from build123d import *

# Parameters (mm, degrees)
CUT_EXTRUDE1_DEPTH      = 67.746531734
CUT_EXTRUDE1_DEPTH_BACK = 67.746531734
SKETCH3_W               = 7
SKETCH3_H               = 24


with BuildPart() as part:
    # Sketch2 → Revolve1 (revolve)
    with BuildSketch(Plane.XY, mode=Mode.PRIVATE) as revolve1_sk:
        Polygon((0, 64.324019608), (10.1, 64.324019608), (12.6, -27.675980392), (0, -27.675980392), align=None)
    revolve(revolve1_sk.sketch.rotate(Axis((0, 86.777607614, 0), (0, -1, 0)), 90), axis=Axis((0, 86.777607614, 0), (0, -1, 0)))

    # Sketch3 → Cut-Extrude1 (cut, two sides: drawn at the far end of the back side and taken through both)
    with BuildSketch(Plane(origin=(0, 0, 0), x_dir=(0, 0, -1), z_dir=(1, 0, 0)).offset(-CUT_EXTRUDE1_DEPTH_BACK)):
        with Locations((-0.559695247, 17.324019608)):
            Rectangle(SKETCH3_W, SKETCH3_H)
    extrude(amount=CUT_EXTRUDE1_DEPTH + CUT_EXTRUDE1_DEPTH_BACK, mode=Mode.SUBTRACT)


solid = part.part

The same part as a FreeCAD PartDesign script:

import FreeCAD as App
import Part
import Sketcher

V = App.Vector

doc = App.newDocument("Part")
body = doc.addObject("PartDesign::Body", "Body")

# Sketch on XY plane
sketch1 = body.newObject("Sketcher::SketchObject", "Sketch")
sketch1.AttachmentSupport = (doc.getObject("XY_Plane"), [""])
sketch1.MapMode = "FlatFace"
sketch1.addGeometry(Part.LineSegment(V(10.1, 64.32402, 0), V(0, 64.32402, 0)), False)
sketch1.addGeometry(Part.LineSegment(V(0, 64.32402, 0), V(0, -27.67598, 0)), False)
sketch1.addGeometry(Part.LineSegment(V(0, -27.67598, 0), V(12.6, -27.67598, 0)), False)
sketch1.addGeometry(Part.LineSegment(V(12.6, -27.67598, 0), V(10.1, 64.32402, 0)), False)
sketch1.addConstraint(Sketcher.Constraint("Coincident", 0, 2, 1, 1))
sketch1.addConstraint(Sketcher.Constraint("Coincident", 1, 2, 2, 1))
sketch1.addConstraint(Sketcher.Constraint("Coincident", 2, 2, 3, 1))
sketch1.addConstraint(Sketcher.Constraint("Coincident", 3, 2, 0, 1))
sketch1.addConstraint(Sketcher.Constraint("Horizontal", 0))
sketch1.addConstraint(Sketcher.Constraint("Vertical", 1))
sketch1.addConstraint(Sketcher.Constraint("Horizontal", 2))
sketch1.addConstraint(Sketcher.Constraint("PointOnObject", 0, 2, -2))
sketch1.addConstraint(Sketcher.Constraint("DistanceY", 1, 2, 1, 1, 92.0))
sketch1.addConstraint(Sketcher.Constraint("DistanceX", 0, 2, 0, 1, 10.1))
sketch1.addConstraint(Sketcher.Constraint("DistanceX", 2, 1, 2, 2, 12.6))
sketch1.addConstraint(Sketcher.Constraint("DistanceY", -1, 1, 0, 2, 64.32402))
revolution = body.newObject("PartDesign::Revolution", "Revolution")
revolution.Profile = sketch1
revolution.ReferenceAxis = (sketch1, ["V_Axis"])
revolution.Angle = 360

# Sketch on YZ plane
sketch2 = body.newObject("Sketcher::SketchObject", "Sketch001")
sketch2.AttachmentSupport = (doc.getObject("YZ_Plane"), [""])
sketch2.MapMode = "FlatFace"
sketch2.addGeometry(Part.LineSegment(V(29.32402, 4.059695, 0), V(5.32402, 4.059695, 0)), False)
sketch2.addGeometry(Part.LineSegment(V(5.32402, 4.059695, 0), V(5.32402, -2.940305, 0)), False)
sketch2.addGeometry(Part.LineSegment(V(5.32402, -2.940305, 0), V(29.32402, -2.940305, 0)), False)
sketch2.addGeometry(Part.LineSegment(V(29.32402, -2.940305, 0), V(29.32402, 4.059695, 0)), False)
sketch2.addConstraint(Sketcher.Constraint("Coincident", 0, 2, 1, 1))
sketch2.addConstraint(Sketcher.Constraint("Coincident", 1, 2, 2, 1))
sketch2.addConstraint(Sketcher.Constraint("Coincident", 2, 2, 3, 1))
sketch2.addConstraint(Sketcher.Constraint("Coincident", 3, 2, 0, 1))
sketch2.addConstraint(Sketcher.Constraint("Horizontal", 0))
sketch2.addConstraint(Sketcher.Constraint("Vertical", 1))
sketch2.addConstraint(Sketcher.Constraint("Horizontal", 2))
sketch2.addConstraint(Sketcher.Constraint("Vertical", 3))
sketch2.addConstraint(Sketcher.Constraint("DistanceX", 0, 2, 0, 1, 24.0))
sketch2.addConstraint(Sketcher.Constraint("DistanceY", 1, 2, 1, 1, 7.0))
sketch2.addConstraint(Sketcher.Constraint("DistanceX", -1, 1, 0, 2, 5.32402))
sketch2.addConstraint(Sketcher.Constraint("DistanceY", -1, 1, 0, 2, 4.059695))
pocket1 = body.newObject("PartDesign::Pocket", "Pocket")
pocket1.Profile = sketch2
pocket1.Type = "ThroughAll"
pocket1.Midplane = True

doc.recompute()
